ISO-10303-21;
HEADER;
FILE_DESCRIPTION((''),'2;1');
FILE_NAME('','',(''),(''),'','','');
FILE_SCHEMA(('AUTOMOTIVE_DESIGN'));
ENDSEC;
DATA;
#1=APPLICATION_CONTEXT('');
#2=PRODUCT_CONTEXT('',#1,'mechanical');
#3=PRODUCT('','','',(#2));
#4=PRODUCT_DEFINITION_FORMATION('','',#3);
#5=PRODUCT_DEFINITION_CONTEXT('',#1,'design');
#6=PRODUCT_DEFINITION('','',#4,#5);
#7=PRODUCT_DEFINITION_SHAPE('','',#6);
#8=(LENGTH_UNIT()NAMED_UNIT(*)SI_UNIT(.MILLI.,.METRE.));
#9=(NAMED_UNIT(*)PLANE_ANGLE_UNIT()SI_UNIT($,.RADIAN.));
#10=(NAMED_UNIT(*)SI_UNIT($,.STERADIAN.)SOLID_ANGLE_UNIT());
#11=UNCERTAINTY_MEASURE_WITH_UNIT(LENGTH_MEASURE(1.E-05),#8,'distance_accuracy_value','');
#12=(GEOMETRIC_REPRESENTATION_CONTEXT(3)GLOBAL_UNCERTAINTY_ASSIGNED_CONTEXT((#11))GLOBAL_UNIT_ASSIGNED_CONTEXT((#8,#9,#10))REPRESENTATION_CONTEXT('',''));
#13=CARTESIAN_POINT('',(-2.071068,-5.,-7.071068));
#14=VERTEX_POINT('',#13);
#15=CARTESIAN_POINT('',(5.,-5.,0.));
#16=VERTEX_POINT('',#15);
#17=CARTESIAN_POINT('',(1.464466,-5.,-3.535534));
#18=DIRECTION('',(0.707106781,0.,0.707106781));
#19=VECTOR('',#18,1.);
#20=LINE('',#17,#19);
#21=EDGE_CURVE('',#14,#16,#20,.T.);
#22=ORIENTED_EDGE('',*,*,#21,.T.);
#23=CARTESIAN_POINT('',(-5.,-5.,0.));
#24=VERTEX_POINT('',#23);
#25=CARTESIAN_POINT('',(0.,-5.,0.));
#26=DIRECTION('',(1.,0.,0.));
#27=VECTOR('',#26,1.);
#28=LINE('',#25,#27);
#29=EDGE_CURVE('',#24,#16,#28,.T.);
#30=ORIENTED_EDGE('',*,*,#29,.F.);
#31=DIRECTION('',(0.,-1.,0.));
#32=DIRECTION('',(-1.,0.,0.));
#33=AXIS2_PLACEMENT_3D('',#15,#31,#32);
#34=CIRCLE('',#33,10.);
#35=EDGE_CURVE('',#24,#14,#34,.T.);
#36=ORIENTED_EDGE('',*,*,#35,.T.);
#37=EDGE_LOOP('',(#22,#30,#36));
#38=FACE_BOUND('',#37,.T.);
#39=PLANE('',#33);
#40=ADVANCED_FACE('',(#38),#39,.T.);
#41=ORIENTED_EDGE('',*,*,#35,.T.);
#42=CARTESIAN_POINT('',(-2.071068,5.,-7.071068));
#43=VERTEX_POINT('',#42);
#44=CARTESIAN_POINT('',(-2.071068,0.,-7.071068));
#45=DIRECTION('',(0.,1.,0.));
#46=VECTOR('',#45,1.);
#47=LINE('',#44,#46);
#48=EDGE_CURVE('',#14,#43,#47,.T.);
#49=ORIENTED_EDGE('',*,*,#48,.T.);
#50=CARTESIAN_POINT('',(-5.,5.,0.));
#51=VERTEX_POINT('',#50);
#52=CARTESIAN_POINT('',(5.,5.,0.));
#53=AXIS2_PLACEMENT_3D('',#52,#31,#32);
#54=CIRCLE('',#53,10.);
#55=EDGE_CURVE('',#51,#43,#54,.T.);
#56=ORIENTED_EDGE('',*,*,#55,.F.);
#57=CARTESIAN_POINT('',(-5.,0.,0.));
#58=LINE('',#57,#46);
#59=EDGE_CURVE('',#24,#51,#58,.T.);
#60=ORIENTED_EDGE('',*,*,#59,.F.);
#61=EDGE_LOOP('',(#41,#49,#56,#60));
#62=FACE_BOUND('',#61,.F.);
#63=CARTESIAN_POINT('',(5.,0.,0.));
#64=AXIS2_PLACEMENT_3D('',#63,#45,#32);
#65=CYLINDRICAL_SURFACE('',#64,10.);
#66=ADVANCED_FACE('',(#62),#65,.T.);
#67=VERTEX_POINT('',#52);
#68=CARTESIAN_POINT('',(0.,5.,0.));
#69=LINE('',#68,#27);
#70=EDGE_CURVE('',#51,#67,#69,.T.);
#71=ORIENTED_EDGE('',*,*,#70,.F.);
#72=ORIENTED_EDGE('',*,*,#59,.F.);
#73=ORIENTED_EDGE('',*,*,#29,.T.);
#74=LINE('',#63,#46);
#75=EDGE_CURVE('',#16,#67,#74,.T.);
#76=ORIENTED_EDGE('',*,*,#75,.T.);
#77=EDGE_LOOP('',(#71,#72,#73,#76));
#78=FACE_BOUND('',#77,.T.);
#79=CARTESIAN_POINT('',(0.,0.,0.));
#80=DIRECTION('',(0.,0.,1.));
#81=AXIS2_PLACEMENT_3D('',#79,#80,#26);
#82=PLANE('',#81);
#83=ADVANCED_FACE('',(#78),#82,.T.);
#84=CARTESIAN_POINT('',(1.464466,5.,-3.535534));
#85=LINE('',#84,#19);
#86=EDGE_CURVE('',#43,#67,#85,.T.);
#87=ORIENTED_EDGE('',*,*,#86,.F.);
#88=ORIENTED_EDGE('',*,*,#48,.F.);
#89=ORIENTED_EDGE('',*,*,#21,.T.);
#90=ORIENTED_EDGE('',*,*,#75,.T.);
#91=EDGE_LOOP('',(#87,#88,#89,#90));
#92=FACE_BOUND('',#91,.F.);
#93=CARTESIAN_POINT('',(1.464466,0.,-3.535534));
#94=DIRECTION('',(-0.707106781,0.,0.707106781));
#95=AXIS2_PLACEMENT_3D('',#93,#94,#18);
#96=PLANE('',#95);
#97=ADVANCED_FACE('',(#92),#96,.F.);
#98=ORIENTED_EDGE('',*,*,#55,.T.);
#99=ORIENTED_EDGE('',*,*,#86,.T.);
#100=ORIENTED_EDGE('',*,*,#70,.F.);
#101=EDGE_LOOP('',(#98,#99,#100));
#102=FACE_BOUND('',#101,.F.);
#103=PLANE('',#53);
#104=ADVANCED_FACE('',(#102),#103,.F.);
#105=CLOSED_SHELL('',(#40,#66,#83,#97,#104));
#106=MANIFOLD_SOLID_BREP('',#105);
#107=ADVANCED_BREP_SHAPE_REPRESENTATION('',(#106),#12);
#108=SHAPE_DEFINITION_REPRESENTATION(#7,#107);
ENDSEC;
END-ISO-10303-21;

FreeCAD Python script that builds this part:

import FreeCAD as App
import Part
import Sketcher

V = App.Vector

doc = App.newDocument("Part")
body = doc.addObject("PartDesign::Body", "Body")

# Sketch on XY plane
sketch1 = body.newObject("Sketcher::SketchObject", "Sketch")
sketch1.AttachmentSupport = (doc.getObject("XY_Plane"), [""])
sketch1.MapMode = "FlatFace"
sketch1.addGeometry([
    Part.LineSegment(V(-5, 5, 0), V(-5, -5, 0)),
    Part.LineSegment(V(-5, -5, 0), V(5, -5, 0)),
    Part.LineSegment(V(5, -5, 0), V(5, 5, 0)),
    Part.LineSegment(V(5, 5, 0), V(-5, 5, 0)),
], False)
sketch1.addGeometry(Part.LineSegment(V(5, 5, 0), V(5, -5, 0)), True)  # axis
sketch1.addConstraint([
    Sketcher.Constraint("Coincident", 0, 2, 1, 1),
    Sketcher.Constraint("Coincident", 1, 2, 2, 1),
    Sketcher.Constraint("Coincident", 2, 2, 3, 1),
    Sketcher.Constraint("Coincident", 3, 2, 0, 1),
    Sketcher.Constraint("Vertical", 0),
    Sketcher.Constraint("Horizontal", 1),
    Sketcher.Constraint("Vertical", 2),
    Sketcher.Constraint("Horizontal", 3),
    Sketcher.Constraint("Vertical", 4),
    Sketcher.Constraint("Coincident", 4, 1, 2, 2),
    Sketcher.Constraint("Symmetric", 0, 2, 2, 2, -1, 1),
    Sketcher.Constraint("Horizontal", 0, 2, 4, 2),
    Sketcher.Constraint("Equal", 3, 0),
    Sketcher.Constraint("DistanceX", 1, 1, 1, 2, 10.0),
])
revolution = body.newObject("PartDesign::Revolution", "Revolution")
revolution.Profile = sketch1
revolution.ReferenceAxis = (sketch1, ["Axis0"])
revolution.Angle = 45

doc.recompute()
